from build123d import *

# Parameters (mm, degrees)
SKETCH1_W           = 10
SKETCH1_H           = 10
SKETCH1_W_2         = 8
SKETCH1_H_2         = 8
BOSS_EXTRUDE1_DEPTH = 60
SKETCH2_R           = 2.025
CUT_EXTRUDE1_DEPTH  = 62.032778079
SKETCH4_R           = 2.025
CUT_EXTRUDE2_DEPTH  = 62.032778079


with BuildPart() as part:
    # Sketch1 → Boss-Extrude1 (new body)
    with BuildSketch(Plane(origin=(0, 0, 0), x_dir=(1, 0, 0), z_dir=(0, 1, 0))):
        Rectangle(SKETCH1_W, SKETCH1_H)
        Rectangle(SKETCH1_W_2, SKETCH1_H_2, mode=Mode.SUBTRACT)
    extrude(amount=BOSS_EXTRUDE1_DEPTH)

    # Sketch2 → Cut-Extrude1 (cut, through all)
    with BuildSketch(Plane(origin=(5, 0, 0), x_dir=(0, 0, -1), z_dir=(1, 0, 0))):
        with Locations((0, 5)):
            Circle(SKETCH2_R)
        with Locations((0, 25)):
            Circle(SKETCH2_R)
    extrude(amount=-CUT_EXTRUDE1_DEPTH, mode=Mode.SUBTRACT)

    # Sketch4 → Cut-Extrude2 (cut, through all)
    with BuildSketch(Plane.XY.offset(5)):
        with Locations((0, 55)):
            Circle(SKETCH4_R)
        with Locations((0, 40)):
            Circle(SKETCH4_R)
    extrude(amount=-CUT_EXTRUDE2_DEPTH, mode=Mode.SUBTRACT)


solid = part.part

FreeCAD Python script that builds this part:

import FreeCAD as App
import Part
import Sketcher

V = App.Vector
Q = App.Units.Quantity


def add_polygon(sketch, points):
    """Adds a closed chain of lines whose ends are joined by coincident constraints."""
    first, n = sketch.GeometryCount, len(points)
    for a, b in zip(points, points[1:] + points[:1]):
        sketch.addGeometry(Part.LineSegment(App.Vector(*a, 0), App.Vector(*b, 0)), False)
    for i in range(n):
        sketch.addConstraint(Sketcher.Constraint("Coincident", first + i, 2, first + (i + 1) % n, 1))

doc = App.newDocument("Part")
body = doc.addObject("PartDesign::Body", "Body")

# Sketch on XZ plane
sketch1 = body.newObject("Sketcher::SketchObject", "Sketch")
sketch1.AttachmentSupport = (doc.getObject("XZ_Plane"), [""])
sketch1.MapMode = "FlatFace"
add_polygon(sketch1, [(-5, -5), (-5, 5), (5, 5), (5, -5)])  # lines 0-3
add_polygon(sketch1, [(4, 4), (-4, 4), (-4, -4), (4, -4)])  # lines 4-7
sketch1.addConstraint(Sketcher.Constraint("Vertical", 0))
sketch1.addConstraint(Sketcher.Constraint("Horizontal", 1))
sketch1.addConstraint(Sketcher.Constraint("Vertical", 2))
sketch1.addConstraint(Sketcher.Constraint("Horizontal", 3))
sketch1.addConstraint(Sketcher.Constraint("Horizontal", 4))
sketch1.addConstraint(Sketcher.Constraint("Vertical", 5))
sketch1.addConstraint(Sketcher.Constraint("Horizontal", 6))
sketch1.addConstraint(Sketcher.Constraint("Vertical", 7))
sketch1.addConstraint(Sketcher.Constraint("Symmetric", 0, 2, 2, 2, -1, 1))
sketch1.addConstraint(Sketcher.Constraint("Symmetric", 4, 2, 6, 2, -1, 1))
sketch1.addConstraint(Sketcher.Constraint("Equal", 3, 0))
sketch1.addConstraint(Sketcher.Constraint("Equal", 6, 5))
sketch1.addConstraint(Sketcher.Constraint("DistanceX", 1, 1, 1, 2, Q("10 mm")))
sketch1.addConstraint(Sketcher.Constraint("DistanceX", 4, 2, 4, 1, Q("8 mm")))
pad1 = body.newObject("PartDesign::Pad", "Pad")
pad1.Profile = sketch1
pad1.Length = 60
pad1.Reversed = True

# Sketch on YZ plane
sketch2 = body.newObject("Sketcher::SketchObject", "Sketch001")
sketch2.AttachmentSupport = (doc.getObject("YZ_Plane"), [""])
sketch2.MapMode = "FlatFace"
sketch2.AttachmentOffset = App.Placement(V(0, 0, 5), App.Rotation())
sketch2.addGeometry(Part.Circle(V(5, 0, 0), V(0, 0, 1), 2), False)
sketch2.addGeometry(Part.Circle(V(25, 0, 0), V(0, 0, 1), 2), False)
sketch2.addConstraint(Sketcher.Constraint("Equal", 0, 1))
sketch2.addConstraint(Sketcher.Constraint("PointOnObject", 0, 3, -1))
sketch2.addConstraint(Sketcher.Constraint("PointOnObject", 1, 3, -1))
sketch2.addConstraint(Sketcher.Constraint("Diameter", 0, Q("4.05 mm")))
sketch2.addConstraint(Sketcher.Constraint("DistanceX", -1, 1, 0, 3, Q("5 mm")))
sketch2.addConstraint(Sketcher.Constraint("DistanceX", -1, 1, 1, 3, Q("25 mm")))
pocket1 = body.newObject("PartDesign::Pocket", "Pocket")
pocket1.Profile = sketch2
pocket1.Type = "ThroughAll"

# Sketch on XY plane
sketch3 = body.newObject("Sketcher::SketchObject", "Sketch002")
sketch3.AttachmentSupport = (doc.getObject("XY_Plane"), [""])
sketch3.MapMode = "FlatFace"
sketch3.AttachmentOffset = App.Placement(V(0, 0, 5), App.Rotation())
sketch3.addGeometry(Part.Circle(V(0, 55, 0), V(0, 0, 1), 2), False)
sketch3.addGeometry(Part.Circle(V(0, 40, 0), V(0, 0, 1), 2), False)
sketch3.addConstraint(Sketcher.Constraint("Equal", 0, 1))
sketch3.addConstraint(Sketcher.Constraint("PointOnObject", 0, 3, -2))
sketch3.addConstraint(Sketcher.Constraint("PointOnObject", 1, 3, -2))
sketch3.addConstraint(Sketcher.Constraint("Diameter", 0, Q("4.05 mm")))
sketch3.addConstraint(Sketcher.Constraint("DistanceY", -1, 1, 0, 3, Q("55 mm")))
sketch3.addConstraint(Sketcher.Constraint("DistanceY", -1, 1, 1, 3, Q("40 mm")))
pocket2 = body.newObject("PartDesign::Pocket", "Pocket001")
pocket2.Profile = sketch3
pocket2.Type = "ThroughAll"

doc.recompute()
